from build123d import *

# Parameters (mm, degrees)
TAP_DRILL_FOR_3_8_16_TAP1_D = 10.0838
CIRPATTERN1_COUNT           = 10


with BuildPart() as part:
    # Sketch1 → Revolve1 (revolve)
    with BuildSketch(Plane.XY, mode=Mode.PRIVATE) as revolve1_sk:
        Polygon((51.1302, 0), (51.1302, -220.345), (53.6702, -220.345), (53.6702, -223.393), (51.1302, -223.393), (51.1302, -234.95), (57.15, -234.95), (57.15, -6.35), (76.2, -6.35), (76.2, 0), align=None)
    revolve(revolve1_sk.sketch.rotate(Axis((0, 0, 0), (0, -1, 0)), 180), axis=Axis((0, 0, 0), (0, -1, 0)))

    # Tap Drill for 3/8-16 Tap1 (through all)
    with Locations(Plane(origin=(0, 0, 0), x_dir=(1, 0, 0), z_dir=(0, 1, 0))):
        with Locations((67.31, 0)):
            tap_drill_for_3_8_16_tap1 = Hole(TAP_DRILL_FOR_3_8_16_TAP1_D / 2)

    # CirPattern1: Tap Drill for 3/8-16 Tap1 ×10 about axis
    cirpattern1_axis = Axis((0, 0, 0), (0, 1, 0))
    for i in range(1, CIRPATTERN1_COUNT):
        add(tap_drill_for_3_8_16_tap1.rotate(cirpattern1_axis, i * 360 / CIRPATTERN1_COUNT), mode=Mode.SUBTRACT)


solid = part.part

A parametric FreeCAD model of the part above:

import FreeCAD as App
import Part
import Sketcher

V = App.Vector
Q = App.Units.Quantity

doc = App.newDocument("Part")
body = doc.addObject("PartDesign::Body", "Body")

# Sketch on XY plane
sketch1 = doc.addObject("Sketcher::SketchObject", "Sketch")
body.addObject(sketch1)
sketch1.AttachmentSupport = (doc.XY_Plane, [""])
sketch1.MapMode = "FlatFace"
sketch1.addGeometry(Part.LineSegment(V(51.1, 0, 0), V(51.1, -220.3, 0)), False)
sketch1.addGeometry(Part.LineSegment(V(51.1, -220.3, 0), V(53.7, -220.3, 0)), False)
sketch1.addGeometry(Part.LineSegment(V(53.7, -220.3, 0), V(53.7, -223.4, 0)), False)
sketch1.addGeometry(Part.LineSegment(V(53.7, -223.4, 0), V(51.1, -223.4, 0)), False)
sketch1.addGeometry(Part.LineSegment(V(51.1, -223.4, 0), V(51.1, -234.9, 0)), False)
sketch1.addGeometry(Part.LineSegment(V(51.1, -234.9, 0), V(57.1, -234.9, 0)), False)
sketch1.addGeometry(Part.LineSegment(V(57.1, -234.9, 0), V(57.1, -6.3, 0)), False)
sketch1.addGeometry(Part.LineSegment(V(57.1, -6.3, 0), V(76.2, -6.3, 0)), False)
sketch1.addGeometry(Part.LineSegment(V(76.2, -6.3, 0), V(76.2, 0, 0)), False)
sketch1.addGeometry(Part.LineSegment(V(76.2, 0, 0), V(51.1, 0, 0)), False)
sketch1.addConstraint(Sketcher.Constraint("Coincident", 0, 2, 1, 1))
sketch1.addConstraint(Sketcher.Constraint("Coincident", 1, 2, 2, 1))
sketch1.addConstraint(Sketcher.Constraint("Coincident", 2, 2, 3, 1))
sketch1.addConstraint(Sketcher.Constraint("Coincident", 3, 2, 4, 1))
sketch1.addConstraint(Sketcher.Constraint("Coincident", 4, 2, 5, 1))
sketch1.addConstraint(Sketcher.Constraint("Coincident", 5, 2, 6, 1))
sketch1.addConstraint(Sketcher.Constraint("Coincident", 6, 2, 7, 1))
sketch1.addConstraint(Sketcher.Constraint("Coincident", 7, 2, 8, 1))
sketch1.addConstraint(Sketcher.Constraint("Coincident", 8, 2, 9, 1))
sketch1.addConstraint(Sketcher.Constraint("Coincident", 9, 2, 0, 1))
sketch1.addConstraint(Sketcher.Constraint("Vertical", 0))
sketch1.addConstraint(Sketcher.Constraint("Horizontal", 1))
sketch1.addConstraint(Sketcher.Constraint("Vertical", 2))
sketch1.addConstraint(Sketcher.Constraint("Horizontal", 3))
sketch1.addConstraint(Sketcher.Constraint("Vertical", 4))
sketch1.addConstraint(Sketcher.Constraint("Horizontal", 5))
sketch1.addConstraint(Sketcher.Constraint("Vertical", 6))
sketch1.addConstraint(Sketcher.Constraint("Horizontal", 7))
sketch1.addConstraint(Sketcher.Constraint("Vertical", 8))
sketch1.addConstraint(Sketcher.Constraint("Horizontal", 9))
sketch1.addConstraint(Sketcher.Constraint("PointOnObject", 8, 2, -1))
sketch1.addConstraint(Sketcher.Constraint("Vertical", 0, 2, 3, 2))
sketch1.addConstraint(Sketcher.Constraint("DistanceY", 6, 1, 6, 2, Q("9 in")))
sketch1.addConstraint(Sketcher.Constraint("DistanceX", 1, 1, 1, 2, Q("0.1 in")))
sketch1.addConstraint(Sketcher.Constraint("DistanceX", -1, 1, 7, 2, Q("3 in")))
sketch1.addConstraint(Sketcher.Constraint("DistanceX", 7, 1, 7, 2, Q("0.75 in")))
sketch1.addConstraint(Sketcher.Constraint("DistanceY", 2, 2, 2, 1, Q("0.12 in")))
sketch1.addConstraint(Sketcher.Constraint("DistanceY", 8, 1, 8, 2, Q("0.25 in")))
sketch1.addConstraint(Sketcher.Constraint("DistanceX", 5, 1, 5, 2, Q("0.237 in")))
sketch1.addConstraint(Sketcher.Constraint("DistanceY", 0, 2, 0, 1, Q("8.675 in")))
revolution = doc.addObject("PartDesign::Revolution", "Revolution")
body.addObject(revolution)
revolution.Profile = sketch1
revolution.ReferenceAxis = (sketch1, ["V_Axis"])
revolution.Angle = 360

# Sketch on XZ plane
sketch2 = doc.addObject("Sketcher::SketchObject", "Sketch001")
body.addObject(sketch2)
sketch2.AttachmentSupport = (doc.XZ_Plane, [""])
sketch2.MapMode = "FlatFace"
sketch2.addGeometry(Part.Circle(V(67, 0, 0), V(0, 0, 1), 5), False)
sketch2.addConstraint(Sketcher.Constraint("PointOnObject", 0, 3, -1))
sketch2.addConstraint(Sketcher.Constraint("Diameter", 0, Q("0.397 in")))
sketch2.addConstraint(Sketcher.Constraint("DistanceX", -1, 1, 0, 3, Q("2.65 in")))
doc.recompute()
hole = doc.addObject("PartDesign::Hole", "Hole")
body.addObject(hole)
hole.Profile = sketch2
hole.ThreadType = "None"
hole.Diameter = Q("0.397 in")
hole.DepthType = "ThroughAll"
hole.Reversed = True
doc.recompute()

polarpattern = doc.addObject("PartDesign::PolarPattern", "PolarPattern")
body.addObject(polarpattern)
polarpattern.Originals = [hole]
polarpattern.Axis = (doc.Y_Axis, [""])
polarpattern.Angle = 360
polarpattern.Occurrences = 10
body.Tip = polarpattern

doc.recompute()
